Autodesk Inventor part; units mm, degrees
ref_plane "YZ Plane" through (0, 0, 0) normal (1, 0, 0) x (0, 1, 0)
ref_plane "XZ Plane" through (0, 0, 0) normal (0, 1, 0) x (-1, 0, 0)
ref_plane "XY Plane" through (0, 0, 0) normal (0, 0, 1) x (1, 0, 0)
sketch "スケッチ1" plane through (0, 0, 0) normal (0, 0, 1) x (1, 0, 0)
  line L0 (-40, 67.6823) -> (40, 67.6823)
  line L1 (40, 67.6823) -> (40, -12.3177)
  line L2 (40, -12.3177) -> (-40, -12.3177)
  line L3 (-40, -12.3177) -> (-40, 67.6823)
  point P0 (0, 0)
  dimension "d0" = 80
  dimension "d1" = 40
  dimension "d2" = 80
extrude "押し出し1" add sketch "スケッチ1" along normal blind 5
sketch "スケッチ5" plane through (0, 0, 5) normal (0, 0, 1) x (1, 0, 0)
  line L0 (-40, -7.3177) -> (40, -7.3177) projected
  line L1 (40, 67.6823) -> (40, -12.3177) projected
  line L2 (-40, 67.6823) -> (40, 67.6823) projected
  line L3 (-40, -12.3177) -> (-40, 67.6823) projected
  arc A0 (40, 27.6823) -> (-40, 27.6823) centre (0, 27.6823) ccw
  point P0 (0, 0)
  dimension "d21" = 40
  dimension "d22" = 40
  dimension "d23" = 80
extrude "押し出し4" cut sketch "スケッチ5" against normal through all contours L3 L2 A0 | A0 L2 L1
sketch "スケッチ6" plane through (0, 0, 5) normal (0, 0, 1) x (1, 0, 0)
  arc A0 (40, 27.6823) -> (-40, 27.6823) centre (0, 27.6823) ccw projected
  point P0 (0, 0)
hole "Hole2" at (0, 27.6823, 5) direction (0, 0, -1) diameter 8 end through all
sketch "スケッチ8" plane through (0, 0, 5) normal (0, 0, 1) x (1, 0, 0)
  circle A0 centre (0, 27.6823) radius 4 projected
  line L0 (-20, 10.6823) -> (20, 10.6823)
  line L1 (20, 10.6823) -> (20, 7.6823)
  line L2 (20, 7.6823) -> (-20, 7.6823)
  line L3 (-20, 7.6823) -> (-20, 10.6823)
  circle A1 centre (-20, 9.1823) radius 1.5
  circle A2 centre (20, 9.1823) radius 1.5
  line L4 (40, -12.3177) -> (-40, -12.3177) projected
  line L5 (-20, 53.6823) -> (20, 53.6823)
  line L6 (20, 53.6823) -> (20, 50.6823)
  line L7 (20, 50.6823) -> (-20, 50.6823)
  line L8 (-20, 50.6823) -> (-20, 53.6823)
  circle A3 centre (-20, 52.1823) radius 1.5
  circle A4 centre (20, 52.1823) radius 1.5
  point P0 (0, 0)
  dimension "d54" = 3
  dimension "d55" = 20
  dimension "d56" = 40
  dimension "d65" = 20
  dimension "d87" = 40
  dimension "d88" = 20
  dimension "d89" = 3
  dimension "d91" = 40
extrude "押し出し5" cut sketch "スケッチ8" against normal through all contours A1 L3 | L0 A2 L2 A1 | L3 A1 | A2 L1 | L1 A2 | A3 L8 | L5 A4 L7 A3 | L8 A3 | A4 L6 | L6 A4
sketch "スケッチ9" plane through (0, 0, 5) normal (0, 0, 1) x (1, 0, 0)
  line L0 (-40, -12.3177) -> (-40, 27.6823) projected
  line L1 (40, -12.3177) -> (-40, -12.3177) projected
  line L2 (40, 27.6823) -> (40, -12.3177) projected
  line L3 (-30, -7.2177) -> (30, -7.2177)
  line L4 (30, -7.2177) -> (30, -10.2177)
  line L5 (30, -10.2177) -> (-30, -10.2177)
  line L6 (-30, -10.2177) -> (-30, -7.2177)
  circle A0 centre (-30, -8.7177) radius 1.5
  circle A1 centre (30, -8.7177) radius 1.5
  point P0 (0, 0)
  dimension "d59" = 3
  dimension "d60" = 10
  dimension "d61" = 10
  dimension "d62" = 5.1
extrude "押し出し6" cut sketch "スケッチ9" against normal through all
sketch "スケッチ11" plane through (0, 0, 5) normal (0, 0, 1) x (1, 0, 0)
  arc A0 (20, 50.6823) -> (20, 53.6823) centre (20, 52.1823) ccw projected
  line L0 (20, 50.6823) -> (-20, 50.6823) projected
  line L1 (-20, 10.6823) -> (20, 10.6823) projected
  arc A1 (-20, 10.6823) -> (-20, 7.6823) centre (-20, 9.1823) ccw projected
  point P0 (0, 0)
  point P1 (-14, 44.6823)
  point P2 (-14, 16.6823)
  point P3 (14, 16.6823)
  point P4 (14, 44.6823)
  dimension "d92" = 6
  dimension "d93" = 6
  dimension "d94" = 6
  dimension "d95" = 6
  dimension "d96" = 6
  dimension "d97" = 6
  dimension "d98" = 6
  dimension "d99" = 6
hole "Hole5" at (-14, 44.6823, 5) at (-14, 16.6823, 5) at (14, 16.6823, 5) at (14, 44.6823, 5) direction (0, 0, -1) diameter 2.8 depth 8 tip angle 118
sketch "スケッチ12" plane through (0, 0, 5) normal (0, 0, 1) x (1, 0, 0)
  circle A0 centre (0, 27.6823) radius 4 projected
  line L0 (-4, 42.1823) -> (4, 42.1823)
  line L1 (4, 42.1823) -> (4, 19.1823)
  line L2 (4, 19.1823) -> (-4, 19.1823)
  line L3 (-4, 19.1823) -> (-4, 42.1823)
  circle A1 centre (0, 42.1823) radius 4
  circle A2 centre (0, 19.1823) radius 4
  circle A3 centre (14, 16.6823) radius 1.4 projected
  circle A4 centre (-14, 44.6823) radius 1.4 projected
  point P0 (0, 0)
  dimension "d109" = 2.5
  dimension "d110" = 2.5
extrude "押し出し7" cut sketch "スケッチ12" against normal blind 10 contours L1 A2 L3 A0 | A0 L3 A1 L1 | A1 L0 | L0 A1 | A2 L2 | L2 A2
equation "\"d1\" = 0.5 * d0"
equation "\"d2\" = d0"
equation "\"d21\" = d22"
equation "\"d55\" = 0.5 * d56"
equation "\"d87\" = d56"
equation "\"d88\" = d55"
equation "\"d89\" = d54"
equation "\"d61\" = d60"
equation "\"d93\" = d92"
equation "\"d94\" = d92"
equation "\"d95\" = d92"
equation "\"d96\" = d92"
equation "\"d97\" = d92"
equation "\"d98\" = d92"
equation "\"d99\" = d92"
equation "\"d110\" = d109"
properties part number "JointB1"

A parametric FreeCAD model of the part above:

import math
import FreeCAD as App
import Part
import Sketcher
from FreeCAD import Vector
Q = App.Units.Quantity

doc = App.newDocument("Part")
body = doc.addObject("PartDesign::Body", "Body")

# Sketch on XY plane
sketch1 = doc.addObject("Sketcher::SketchObject", "Sketch")
body.addObject(sketch1)
sketch1.AttachmentSupport = (doc.XY_Plane, [""])
sketch1.MapMode = "FlatFace"
sketch1.addGeometry(Part.LineSegment(Vector(40, 68, 0), Vector(-40, 68, 0)), False)
sketch1.addGeometry(Part.LineSegment(Vector(-40, 68, 0), Vector(-40, -12, 0)), False)
sketch1.addGeometry(Part.LineSegment(Vector(-40, -12, 0), Vector(40, -12, 0)), False)
sketch1.addGeometry(Part.LineSegment(Vector(40, -12, 0), Vector(40, 68, 0)), False)
sketch1.addConstraint(Sketcher.Constraint("Coincident", 0, 2, 1, 1))
sketch1.addConstraint(Sketcher.Constraint("Coincident", 1, 2, 2, 1))
sketch1.addConstraint(Sketcher.Constraint("Coincident", 2, 2, 3, 1))
sketch1.addConstraint(Sketcher.Constraint("Coincident", 3, 2, 0, 1))
sketch1.addConstraint(Sketcher.Constraint("Horizontal", 0))
sketch1.addConstraint(Sketcher.Constraint("Vertical", 1))
sketch1.addConstraint(Sketcher.Constraint("Horizontal", 2))
sketch1.addConstraint(Sketcher.Constraint("Vertical", 3))
sketch1.addConstraint(Sketcher.Constraint("Equal", 2, 1))
sketch1.addConstraint(Sketcher.Constraint("DistanceX", 0, 2, 0, 1, Q("80 mm")))
sketch1.addConstraint(Sketcher.Constraint("DistanceX", 0, 2, -1, 1, Q("40 mm")))
sketch1.addConstraint(Sketcher.Constraint("DistanceY", -1, 1, 0, 2, Q("67.6823 mm")))
pad1 = doc.addObject("PartDesign::Pad", "Pad")
body.addObject(pad1)
pad1.Profile = sketch1
pad1.Length = 5

# Sketch on XY plane
sketch2 = doc.addObject("Sketcher::SketchObject", "Sketch001")
body.addObject(sketch2)
sketch2.AttachmentSupport = (doc.XY_Plane, [""])
sketch2.MapMode = "FlatFace"
sketch2.AttachmentOffset = App.Placement(Vector(0, 0, 5), App.Rotation())
sketch2.addGeometry(Part.LineSegment(Vector(-40, 68, 0), Vector(-40, 28, 0)), False)
sketch2.addGeometry(Part.ArcOfCircle(Part.Circle(Vector(0, 28, 0), Vector(0, 0, 1), 40), math.radians(90), math.radians(180)), False)
sketch2.addGeometry(Part.LineSegment(Vector(0, 68, 0), Vector(-40, 68, 0)), False)
sketch2.addGeometry(Part.ArcOfCircle(Part.Circle(Vector(0, 28, 0), Vector(0, 0, 1), 40), math.radians(0), math.radians(90)), False)
sketch2.addGeometry(Part.LineSegment(Vector(40, 28, 0), Vector(40, 68, 0)), False)
sketch2.addGeometry(Part.LineSegment(Vector(40, 68, 0), Vector(0, 68, 0)), False)
sketch2.addConstraint(Sketcher.Constraint("Tangent", 0, 2, 1, 2))
sketch2.addConstraint(Sketcher.Constraint("Tangent", 1, 1, 2, 1))
sketch2.addConstraint(Sketcher.Constraint("Coincident", 2, 2, 0, 1))
sketch2.addConstraint(Sketcher.Constraint("Tangent", 3, 1, 4, 1))
sketch2.addConstraint(Sketcher.Constraint("Coincident", 4, 2, 5, 1))
sketch2.addConstraint(Sketcher.Constraint("Tangent", 5, 2, 3, 2))
sketch2.addConstraint(Sketcher.Constraint("Vertical", 0))
sketch2.addConstraint(Sketcher.Constraint("Horizontal", 2))
sketch2.addConstraint(Sketcher.Constraint("Vertical", 4))
sketch2.addConstraint(Sketcher.Constraint("Horizontal", 5))
sketch2.addConstraint(Sketcher.Constraint("Coincident", 3, 3, 1, 3))
sketch2.addConstraint(Sketcher.Constraint("Equal", 1, 3))
sketch2.addConstraint(Sketcher.Constraint("PointOnObject", 1, 3, -2))
sketch2.addConstraint(Sketcher.Constraint("Radius", 1, Q("40 mm")))
sketch2.addConstraint(Sketcher.Constraint("DistanceY", -1, 1, 1, 3, Q("27.6823 mm")))
pocket1 = doc.addObject("PartDesign::Pocket", "Pocket")
body.addObject(pocket1)
pocket1.Profile = sketch2
pocket1.Type = "ThroughAll"

# Sketch on XY plane
sketch3 = doc.addObject("Sketcher::SketchObject", "Sketch002")
body.addObject(sketch3)
sketch3.AttachmentSupport = (doc.XY_Plane, [""])
sketch3.MapMode = "FlatFace"
sketch3.AttachmentOffset = App.Placement(Vector(0, 0, 5), App.Rotation())
sketch3.addGeometry(Part.Circle(Vector(0, 27.7, 0), Vector(0, 0, 1), 4), False)
sketch3.addConstraint(Sketcher.Constraint("PointOnObject", 0, 3, -2))
sketch3.addConstraint(Sketcher.Constraint("Diameter", 0, Q("8 mm")))
sketch3.addConstraint(Sketcher.Constraint("DistanceY", -1, 1, 0, 3, Q("27.6823 mm")))
doc.recompute()
hole = doc.addObject("PartDesign::Hole", "Hole")
body.addObject(hole)
hole.Profile = sketch3
hole.ThreadType = "None"
hole.Diameter = 8
hole.DepthType = "ThroughAll"

# Sketch on XY plane
sketch4 = doc.addObject("Sketcher::SketchObject", "Sketch003")
body.addObject(sketch4)
sketch4.AttachmentSupport = (doc.XY_Plane, [""])
sketch4.MapMode = "FlatFace"
sketch4.AttachmentOffset = App.Placement(Vector(0, 0, 5), App.Rotation())
sketch4.addGeometry(Part.LineSegment(Vector(20, 10.7, 0), Vector(-20, 10.7, 0)), False)
sketch4.addGeometry(Part.ArcOfCircle(Part.Circle(Vector(-20, 9.2, 0), Vector(0, 0, 1), 1.5), math.radians(90), math.radians(270)), False)
sketch4.addGeometry(Part.LineSegment(Vector(-20, 7.7, 0), Vector(20, 7.7, 0)), False)
sketch4.addGeometry(Part.ArcOfCircle(Part.Circle(Vector(20, 9.2, 0), Vector(0, 0, 1), 1.5), math.radians(-90), math.radians(90)), False)
sketch4.addGeometry(Part.LineSegment(Vector(20, 53.7, 0), Vector(-20, 53.7, 0)), False)
sketch4.addGeometry(Part.ArcOfCircle(Part.Circle(Vector(-20, 52.2, 0), Vector(0, 0, 1), 1.5), math.radians(90), math.radians(270)), False)
sketch4.addGeometry(Part.LineSegment(Vector(-20, 50.7, 0), Vector(20, 50.7, 0)), False)
sketch4.addGeometry(Part.ArcOfCircle(Part.Circle(Vector(20, 52.2, 0), Vector(0, 0, 1), 1.5), math.radians(-90), math.radians(90)), False)
sketch4.addConstraint(Sketcher.Constraint("Tangent", 0, 2, 1, 1))
sketch4.addConstraint(Sketcher.Constraint("Tangent", 1, 2, 2, 1))
sketch4.addConstraint(Sketcher.Constraint("Tangent", 2, 2, 3, 1))
sketch4.addConstraint(Sketcher.Constraint("Tangent", 3, 2, 0, 1))
sketch4.addConstraint(Sketcher.Constraint("Tangent", 4, 2, 5, 1))
sketch4.addConstraint(Sketcher.Constraint("Tangent", 5, 2, 6, 1))
sketch4.addConstraint(Sketcher.Constraint("Tangent", 6, 2, 7, 1))
sketch4.addConstraint(Sketcher.Constraint("Tangent", 7, 2, 4, 1))
sketch4.addConstraint(Sketcher.Constraint("Horizontal", 0))
sketch4.addConstraint(Sketcher.Constraint("Horizontal", 2))
sketch4.addConstraint(Sketcher.Constraint("Horizontal", 4))
sketch4.addConstraint(Sketcher.Constraint("Horizontal", 6))
sketch4.addConstraint(Sketcher.Constraint("Equal", 3, 5))
sketch4.addConstraint(Sketcher.Constraint("Vertical", 1, 3, 5, 3))
sketch4.addConstraint(Sketcher.Constraint("Vertical", 3, 3, 7, 3))
sketch4.addConstraint(Sketcher.Constraint("Radius", 1, Q("1.5 mm")))
sketch4.addConstraint(Sketcher.Constraint("DistanceX", 0, 2, 0, 1, Q("40 mm")))
sketch4.addConstraint(Sketcher.Constraint("DistanceX", 1, 3, -1, 1, Q("20 mm")))
sketch4.addConstraint(Sketcher.Constraint("DistanceY", 0, 2, 5, 2, Q("40 mm")))
sketch4.addConstraint(Sketcher.Constraint("DistanceY", -1, 1, 1, 3, Q("9.1823 mm")))
pocket2 = doc.addObject("PartDesign::Pocket", "Pocket001")
body.addObject(pocket2)
pocket2.Profile = sketch4
pocket2.Type = "ThroughAll"

# Sketch on XY plane
sketch5 = doc.addObject("Sketcher::SketchObject", "Sketch004")
body.addObject(sketch5)
sketch5.AttachmentSupport = (doc.XY_Plane, [""])
sketch5.MapMode = "FlatFace"
sketch5.AttachmentOffset = App.Placement(Vector(0, 0, 5), App.Rotation())
sketch5.addGeometry(Part.LineSegment(Vector(30, -7.2, 0), Vector(-30, -7.2, 0)), False)
sketch5.addGeometry(Part.ArcOfCircle(Part.Circle(Vector(-30, -8.7, 0), Vector(0, 0, 1), 1.5), math.radians(90), math.radians(270)), False)
sketch5.addGeometry(Part.LineSegment(Vector(-30, -10.2, 0), Vector(30, -10.2, 0)), False)
sketch5.addGeometry(Part.ArcOfCircle(Part.Circle(Vector(30, -8.7, 0), Vector(0, 0, 1), 1.5), math.radians(-90), math.radians(90)), False)
sketch5.addConstraint(Sketcher.Constraint("Tangent", 0, 2, 1, 1))
sketch5.addConstraint(Sketcher.Constraint("Tangent", 1, 2, 2, 1))
sketch5.addConstraint(Sketcher.Constraint("Tangent", 2, 2, 3, 1))
sketch5.addConstraint(Sketcher.Constraint("Tangent", 3, 2, 0, 1))
sketch5.addConstraint(Sketcher.Constraint("Horizontal", 0))
sketch5.addConstraint(Sketcher.Constraint("Horizontal", 2))
sketch5.addConstraint(Sketcher.Constraint("Radius", 1, Q("1.5 mm")))
sketch5.addConstraint(Sketcher.Constraint("DistanceX", 0, 2, 0, 1, Q("60 mm")))
sketch5.addConstraint(Sketcher.Constraint("DistanceX", 1, 3, -1, 1, Q("30 mm")))
sketch5.addConstraint(Sketcher.Constraint("DistanceY", 1, 3, -1, 1, Q("8.7177 mm")))
pocket3 = doc.addObject("PartDesign::Pocket", "Pocket002")
body.addObject(pocket3)
pocket3.Profile = sketch5
pocket3.Type = "ThroughAll"

# Sketch on XY plane
sketch6 = doc.addObject("Sketcher::SketchObject", "Sketch005")
body.addObject(sketch6)
sketch6.AttachmentSupport = (doc.XY_Plane, [""])
sketch6.MapMode = "FlatFace"
sketch6.AttachmentOffset = App.Placement(Vector(0, 0, 5), App.Rotation())
sketch6.addGeometry(Part.Circle(Vector(-14, 44.7, 0), Vector(0, 0, 1), 1.4), False)
sketch6.addGeometry(Part.Circle(Vector(-14, 16.7, 0), Vector(0, 0, 1), 1.4), False)
sketch6.addGeometry(Part.Circle(Vector(14, 16.7, 0), Vector(0, 0, 1), 1.4), False)
sketch6.addGeometry(Part.Circle(Vector(14, 44.7, 0), Vector(0, 0, 1), 1.4), False)
sketch6.addConstraint(Sketcher.Constraint("Equal", 0, 1))
sketch6.addConstraint(Sketcher.Constraint("Equal", 1, 2))
sketch6.addConstraint(Sketcher.Constraint("Equal", 2, 3))
sketch6.addConstraint(Sketcher.Constraint("Symmetric", 1, 3, 2, 3, -2))
sketch6.addConstraint(Sketcher.Constraint("Symmetric", 0, 3, 3, 3, -2))
sketch6.addConstraint(Sketcher.Constraint("Vertical", 0, 3, 1, 3))
sketch6.addConstraint(Sketcher.Constraint("Diameter", 0, Q("2.8 mm")))
sketch6.addConstraint(Sketcher.Constraint("DistanceX", 0, 3, -1, 1, Q("14 mm")))
sketch6.addConstraint(Sketcher.Constraint("DistanceY", 1, 3, 0, 3, Q("28 mm")))
sketch6.addConstraint(Sketcher.Constraint("DistanceY", -1, 1, 0, 3, Q("44.6823 mm")))
doc.recompute()
hole2 = doc.addObject("PartDesign::Hole", "Hole001")
body.addObject(hole2)
hole2.Profile = sketch6
hole2.ThreadType = "None"
hole2.Diameter = 2.8
hole2.DepthType = "Dimension"
hole2.Depth = 8
hole2.DrillPoint = "Angled"
hole2.DrillPointAngle = 118

# Sketch on XY plane
sketch7 = doc.addObject("Sketcher::SketchObject", "Sketch006")
body.addObject(sketch7)
sketch7.AttachmentSupport = (doc.XY_Plane, [""])
sketch7.MapMode = "FlatFace"
sketch7.AttachmentOffset = App.Placement(Vector(0, 0, 5), App.Rotation())
sketch7.addGeometry(Part.LineSegment(Vector(4, 19.2, 0), Vector(4, 27.7, 0)), False)
sketch7.addGeometry(Part.ArcOfCircle(Part.Circle(Vector(0, 27.7, 0), Vector(0, 0, 1), 4), math.radians(180), math.radians(360)), False)
sketch7.addGeometry(Part.LineSegment(Vector(-4, 27.7, 0), Vector(-4, 19.2, 0)), False)
sketch7.addGeometry(Part.ArcOfCircle(Part.Circle(Vector(0, 19.2, 0), Vector(0, 0, 1), 4), math.radians(180), math.radians(360)), False)
sketch7.addGeometry(Part.ArcOfCircle(Part.Circle(Vector(0, 27.7, 0), Vector(0, 0, 1), 4), math.radians(0), math.radians(180)), False)
sketch7.addGeometry(Part.LineSegment(Vector(4, 27.7, 0), Vector(4, 42.2, 0)), False)
sketch7.addGeometry(Part.ArcOfCircle(Part.Circle(Vector(0, 42.2, 0), Vector(0, 0, 1), 4), math.radians(0), math.radians(180)), False)
sketch7.addGeometry(Part.LineSegment(Vector(-4, 42.2, 0), Vector(-4, 27.7, 0)), False)
sketch7.addConstraint(Sketcher.Constraint("Tangent", 0, 2, 1, 2))
sketch7.addConstraint(Sketcher.Constraint("Tangent", 1, 1, 2, 1))
sketch7.addConstraint(Sketcher.Constraint("Tangent", 2, 2, 3, 1))
sketch7.addConstraint(Sketcher.Constraint("Tangent", 3, 2, 0, 1))
sketch7.addConstraint(Sketcher.Constraint("Tangent", 4, 1, 5, 1))
sketch7.addConstraint(Sketcher.Constraint("Tangent", 5, 2, 6, 1))
sketch7.addConstraint(Sketcher.Constraint("Tangent", 6, 2, 7, 1))
sketch7.addConstraint(Sketcher.Constraint("Tangent", 7, 2, 4, 2))
sketch7.addConstraint(Sketcher.Constraint("Vertical", 0))
sketch7.addConstraint(Sketcher.Constraint("Vertical", 2))
sketch7.addConstraint(Sketcher.Constraint("Vertical", 5))
sketch7.addConstraint(Sketcher.Constraint("Vertical", 7))
sketch7.addConstraint(Sketcher.Constraint("Coincident", 4, 3, 1, 3))
sketch7.addConstraint(Sketcher.Constraint("Equal", 3, 4))
sketch7.addConstraint(Sketcher.Constraint("PointOnObject", 1, 3, -2))
sketch7.addConstraint(Sketcher.Constraint("Radius", 1, Q("4 mm")))
sketch7.addConstraint(Sketcher.Constraint("DistanceY", 0, 1, 0, 2, Q("8.5 mm")))
sketch7.addConstraint(Sketcher.Constraint("DistanceY", 5, 1, 5, 2, Q("14.5 mm")))
sketch7.addConstraint(Sketcher.Constraint("DistanceY", -1, 1, 1, 3, Q("27.6823 mm")))
pocket4 = doc.addObject("PartDesign::Pocket", "Pocket003")
body.addObject(pocket4)
pocket4.Profile = sketch7
pocket4.Length = 10

doc.recompute()
